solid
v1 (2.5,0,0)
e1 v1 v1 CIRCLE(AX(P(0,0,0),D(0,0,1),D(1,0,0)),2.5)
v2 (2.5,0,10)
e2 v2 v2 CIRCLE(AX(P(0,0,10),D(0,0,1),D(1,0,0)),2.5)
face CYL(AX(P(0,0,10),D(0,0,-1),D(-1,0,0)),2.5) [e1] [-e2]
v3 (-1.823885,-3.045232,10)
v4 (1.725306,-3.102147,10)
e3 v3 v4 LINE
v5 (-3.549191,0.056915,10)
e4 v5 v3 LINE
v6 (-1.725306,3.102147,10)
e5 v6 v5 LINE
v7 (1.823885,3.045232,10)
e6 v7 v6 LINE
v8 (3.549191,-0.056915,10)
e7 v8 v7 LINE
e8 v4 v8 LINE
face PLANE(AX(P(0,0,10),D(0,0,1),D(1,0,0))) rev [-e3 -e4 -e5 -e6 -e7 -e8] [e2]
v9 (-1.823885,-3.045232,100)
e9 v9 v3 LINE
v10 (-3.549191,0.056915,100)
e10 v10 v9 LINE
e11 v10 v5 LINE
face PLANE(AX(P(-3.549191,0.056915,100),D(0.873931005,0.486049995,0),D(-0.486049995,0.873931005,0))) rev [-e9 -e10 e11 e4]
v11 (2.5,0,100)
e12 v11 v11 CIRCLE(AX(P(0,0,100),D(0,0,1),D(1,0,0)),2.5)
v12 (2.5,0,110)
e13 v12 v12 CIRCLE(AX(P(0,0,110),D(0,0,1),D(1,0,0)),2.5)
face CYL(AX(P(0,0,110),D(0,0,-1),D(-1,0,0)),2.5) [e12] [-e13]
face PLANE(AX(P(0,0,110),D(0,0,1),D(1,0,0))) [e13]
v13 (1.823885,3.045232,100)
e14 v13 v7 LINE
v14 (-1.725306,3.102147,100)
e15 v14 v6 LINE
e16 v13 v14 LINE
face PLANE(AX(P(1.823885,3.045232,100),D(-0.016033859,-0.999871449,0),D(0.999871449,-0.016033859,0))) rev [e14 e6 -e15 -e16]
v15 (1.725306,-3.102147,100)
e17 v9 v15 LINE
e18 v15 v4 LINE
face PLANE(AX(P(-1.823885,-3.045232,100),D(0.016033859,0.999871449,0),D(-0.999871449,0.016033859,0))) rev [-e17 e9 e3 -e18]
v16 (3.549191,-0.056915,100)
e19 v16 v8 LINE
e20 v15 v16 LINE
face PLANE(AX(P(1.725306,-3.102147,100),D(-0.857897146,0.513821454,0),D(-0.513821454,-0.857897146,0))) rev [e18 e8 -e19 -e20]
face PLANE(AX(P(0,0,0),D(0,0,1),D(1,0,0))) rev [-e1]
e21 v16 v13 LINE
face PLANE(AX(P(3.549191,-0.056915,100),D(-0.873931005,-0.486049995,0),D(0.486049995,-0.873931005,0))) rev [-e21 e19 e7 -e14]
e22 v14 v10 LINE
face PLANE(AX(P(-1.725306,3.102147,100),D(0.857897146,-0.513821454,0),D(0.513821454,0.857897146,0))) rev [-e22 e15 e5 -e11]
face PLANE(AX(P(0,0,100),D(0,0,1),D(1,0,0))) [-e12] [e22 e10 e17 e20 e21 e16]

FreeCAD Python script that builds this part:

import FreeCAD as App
import Part
import Sketcher

V = App.Vector
Q = App.Units.Quantity

doc = App.newDocument("Part")
body = doc.addObject("PartDesign::Body", "Body")

sketch1 = doc.addObject("Sketcher::SketchObject", "Sketch")
body.addObject(sketch1)
sketch1.AttachmentSupport = (doc.XY_Plane, [""])
sketch1.MapMode = "FlatFace"
sketch1.addGeometry(Part.Circle(V(0, 0, 0), V(0, 0, 1), 2.5), False)
sketch1.addConstraint([
    Sketcher.Constraint("Coincident", 0, 3, -1, 1),
    Sketcher.Constraint("Diameter", 0, Q("5 mm")),
])
pad1 = doc.addObject("PartDesign::Pad", "Pad")
body.addObject(pad1)
pad1.Profile = sketch1
pad1.Length = 10

sketch2 = doc.addObject("Sketcher::SketchObject", "Sketch001")
body.addObject(sketch2)
sketch2.AttachmentSupport = (doc.XY_Plane, [""])
sketch2.MapMode = "FlatFace"
sketch2.AttachmentOffset = App.Placement(V(0, 0, 10), App.Rotation())
sketch2.addGeometry([
    Part.LineSegment(V(3.549191, -0.056915, 0), V(1.823885, 3.045232, 0)),
    Part.LineSegment(V(1.823885, 3.045232, 0), V(-1.725306, 3.102147, 0)),
    Part.LineSegment(V(-1.725306, 3.102147, 0), V(-3.549191, 0.056915, 0)),
    Part.LineSegment(V(-3.549191, 0.056915, 0), V(-1.823885, -3.045232, 0)),
    Part.LineSegment(V(-1.823885, -3.045232, 0), V(1.725306, -3.102147, 0)),
    Part.LineSegment(V(1.725306, -3.102147, 0), V(3.549191, -0.056915, 0)),
], False)
sketch2.addConstraint([
    Sketcher.Constraint("Coincident", 0, 2, 1, 1),
    Sketcher.Constraint("Coincident", 1, 2, 2, 1),
    Sketcher.Constraint("Coincident", 2, 2, 3, 1),
    Sketcher.Constraint("Coincident", 3, 2, 4, 1),
    Sketcher.Constraint("Coincident", 4, 2, 5, 1),
    Sketcher.Constraint("Coincident", 5, 2, 0, 1),
    Sketcher.Constraint("Symmetric", 0, 2, 3, 2, -1, 1),
    Sketcher.Constraint("Symmetric", 1, 2, 4, 2, -1, 1),
    Sketcher.Constraint("Symmetric", 2, 2, 5, 2, -1, 1),
    Sketcher.Constraint("Equal", 0, 1),
    Sketcher.Constraint("Equal", 1, 2),
    Sketcher.Constraint("DistanceX", 2, 2, -1, 1, Q("3.549191 mm")),
    Sketcher.Constraint("DistanceX", 1, 2, 0, 2, Q("3.549191 mm")),
    Sketcher.Constraint("DistanceX", 3, 2, 1, 2, Q("0.098579 mm")),
    Sketcher.Constraint("DistanceY", 3, 2, 1, 2, Q("6.147379 mm")),
])
pad2 = doc.addObject("PartDesign::Pad", "Pad001")
body.addObject(pad2)
pad2.Profile = sketch2
pad2.Length = 90

sketch3 = doc.addObject("Sketcher::SketchObject", "Sketch002")
body.addObject(sketch3)
sketch3.AttachmentSupport = (doc.XY_Plane, [""])
sketch3.MapMode = "FlatFace"
sketch3.AttachmentOffset = App.Placement(V(0, 0, 100), App.Rotation())
sketch3.addGeometry(Part.Circle(V(0, 0, 0), V(0, 0, 1), 2.5), False)
sketch3.addConstraint([
    Sketcher.Constraint("Coincident", 0, 3, -1, 1),
    Sketcher.Constraint("Diameter", 0, Q("5 mm")),
])
pad3 = doc.addObject("PartDesign::Pad", "Pad002")
body.addObject(pad3)
pad3.Profile = sketch3
pad3.Length = 10

doc.recompute()
